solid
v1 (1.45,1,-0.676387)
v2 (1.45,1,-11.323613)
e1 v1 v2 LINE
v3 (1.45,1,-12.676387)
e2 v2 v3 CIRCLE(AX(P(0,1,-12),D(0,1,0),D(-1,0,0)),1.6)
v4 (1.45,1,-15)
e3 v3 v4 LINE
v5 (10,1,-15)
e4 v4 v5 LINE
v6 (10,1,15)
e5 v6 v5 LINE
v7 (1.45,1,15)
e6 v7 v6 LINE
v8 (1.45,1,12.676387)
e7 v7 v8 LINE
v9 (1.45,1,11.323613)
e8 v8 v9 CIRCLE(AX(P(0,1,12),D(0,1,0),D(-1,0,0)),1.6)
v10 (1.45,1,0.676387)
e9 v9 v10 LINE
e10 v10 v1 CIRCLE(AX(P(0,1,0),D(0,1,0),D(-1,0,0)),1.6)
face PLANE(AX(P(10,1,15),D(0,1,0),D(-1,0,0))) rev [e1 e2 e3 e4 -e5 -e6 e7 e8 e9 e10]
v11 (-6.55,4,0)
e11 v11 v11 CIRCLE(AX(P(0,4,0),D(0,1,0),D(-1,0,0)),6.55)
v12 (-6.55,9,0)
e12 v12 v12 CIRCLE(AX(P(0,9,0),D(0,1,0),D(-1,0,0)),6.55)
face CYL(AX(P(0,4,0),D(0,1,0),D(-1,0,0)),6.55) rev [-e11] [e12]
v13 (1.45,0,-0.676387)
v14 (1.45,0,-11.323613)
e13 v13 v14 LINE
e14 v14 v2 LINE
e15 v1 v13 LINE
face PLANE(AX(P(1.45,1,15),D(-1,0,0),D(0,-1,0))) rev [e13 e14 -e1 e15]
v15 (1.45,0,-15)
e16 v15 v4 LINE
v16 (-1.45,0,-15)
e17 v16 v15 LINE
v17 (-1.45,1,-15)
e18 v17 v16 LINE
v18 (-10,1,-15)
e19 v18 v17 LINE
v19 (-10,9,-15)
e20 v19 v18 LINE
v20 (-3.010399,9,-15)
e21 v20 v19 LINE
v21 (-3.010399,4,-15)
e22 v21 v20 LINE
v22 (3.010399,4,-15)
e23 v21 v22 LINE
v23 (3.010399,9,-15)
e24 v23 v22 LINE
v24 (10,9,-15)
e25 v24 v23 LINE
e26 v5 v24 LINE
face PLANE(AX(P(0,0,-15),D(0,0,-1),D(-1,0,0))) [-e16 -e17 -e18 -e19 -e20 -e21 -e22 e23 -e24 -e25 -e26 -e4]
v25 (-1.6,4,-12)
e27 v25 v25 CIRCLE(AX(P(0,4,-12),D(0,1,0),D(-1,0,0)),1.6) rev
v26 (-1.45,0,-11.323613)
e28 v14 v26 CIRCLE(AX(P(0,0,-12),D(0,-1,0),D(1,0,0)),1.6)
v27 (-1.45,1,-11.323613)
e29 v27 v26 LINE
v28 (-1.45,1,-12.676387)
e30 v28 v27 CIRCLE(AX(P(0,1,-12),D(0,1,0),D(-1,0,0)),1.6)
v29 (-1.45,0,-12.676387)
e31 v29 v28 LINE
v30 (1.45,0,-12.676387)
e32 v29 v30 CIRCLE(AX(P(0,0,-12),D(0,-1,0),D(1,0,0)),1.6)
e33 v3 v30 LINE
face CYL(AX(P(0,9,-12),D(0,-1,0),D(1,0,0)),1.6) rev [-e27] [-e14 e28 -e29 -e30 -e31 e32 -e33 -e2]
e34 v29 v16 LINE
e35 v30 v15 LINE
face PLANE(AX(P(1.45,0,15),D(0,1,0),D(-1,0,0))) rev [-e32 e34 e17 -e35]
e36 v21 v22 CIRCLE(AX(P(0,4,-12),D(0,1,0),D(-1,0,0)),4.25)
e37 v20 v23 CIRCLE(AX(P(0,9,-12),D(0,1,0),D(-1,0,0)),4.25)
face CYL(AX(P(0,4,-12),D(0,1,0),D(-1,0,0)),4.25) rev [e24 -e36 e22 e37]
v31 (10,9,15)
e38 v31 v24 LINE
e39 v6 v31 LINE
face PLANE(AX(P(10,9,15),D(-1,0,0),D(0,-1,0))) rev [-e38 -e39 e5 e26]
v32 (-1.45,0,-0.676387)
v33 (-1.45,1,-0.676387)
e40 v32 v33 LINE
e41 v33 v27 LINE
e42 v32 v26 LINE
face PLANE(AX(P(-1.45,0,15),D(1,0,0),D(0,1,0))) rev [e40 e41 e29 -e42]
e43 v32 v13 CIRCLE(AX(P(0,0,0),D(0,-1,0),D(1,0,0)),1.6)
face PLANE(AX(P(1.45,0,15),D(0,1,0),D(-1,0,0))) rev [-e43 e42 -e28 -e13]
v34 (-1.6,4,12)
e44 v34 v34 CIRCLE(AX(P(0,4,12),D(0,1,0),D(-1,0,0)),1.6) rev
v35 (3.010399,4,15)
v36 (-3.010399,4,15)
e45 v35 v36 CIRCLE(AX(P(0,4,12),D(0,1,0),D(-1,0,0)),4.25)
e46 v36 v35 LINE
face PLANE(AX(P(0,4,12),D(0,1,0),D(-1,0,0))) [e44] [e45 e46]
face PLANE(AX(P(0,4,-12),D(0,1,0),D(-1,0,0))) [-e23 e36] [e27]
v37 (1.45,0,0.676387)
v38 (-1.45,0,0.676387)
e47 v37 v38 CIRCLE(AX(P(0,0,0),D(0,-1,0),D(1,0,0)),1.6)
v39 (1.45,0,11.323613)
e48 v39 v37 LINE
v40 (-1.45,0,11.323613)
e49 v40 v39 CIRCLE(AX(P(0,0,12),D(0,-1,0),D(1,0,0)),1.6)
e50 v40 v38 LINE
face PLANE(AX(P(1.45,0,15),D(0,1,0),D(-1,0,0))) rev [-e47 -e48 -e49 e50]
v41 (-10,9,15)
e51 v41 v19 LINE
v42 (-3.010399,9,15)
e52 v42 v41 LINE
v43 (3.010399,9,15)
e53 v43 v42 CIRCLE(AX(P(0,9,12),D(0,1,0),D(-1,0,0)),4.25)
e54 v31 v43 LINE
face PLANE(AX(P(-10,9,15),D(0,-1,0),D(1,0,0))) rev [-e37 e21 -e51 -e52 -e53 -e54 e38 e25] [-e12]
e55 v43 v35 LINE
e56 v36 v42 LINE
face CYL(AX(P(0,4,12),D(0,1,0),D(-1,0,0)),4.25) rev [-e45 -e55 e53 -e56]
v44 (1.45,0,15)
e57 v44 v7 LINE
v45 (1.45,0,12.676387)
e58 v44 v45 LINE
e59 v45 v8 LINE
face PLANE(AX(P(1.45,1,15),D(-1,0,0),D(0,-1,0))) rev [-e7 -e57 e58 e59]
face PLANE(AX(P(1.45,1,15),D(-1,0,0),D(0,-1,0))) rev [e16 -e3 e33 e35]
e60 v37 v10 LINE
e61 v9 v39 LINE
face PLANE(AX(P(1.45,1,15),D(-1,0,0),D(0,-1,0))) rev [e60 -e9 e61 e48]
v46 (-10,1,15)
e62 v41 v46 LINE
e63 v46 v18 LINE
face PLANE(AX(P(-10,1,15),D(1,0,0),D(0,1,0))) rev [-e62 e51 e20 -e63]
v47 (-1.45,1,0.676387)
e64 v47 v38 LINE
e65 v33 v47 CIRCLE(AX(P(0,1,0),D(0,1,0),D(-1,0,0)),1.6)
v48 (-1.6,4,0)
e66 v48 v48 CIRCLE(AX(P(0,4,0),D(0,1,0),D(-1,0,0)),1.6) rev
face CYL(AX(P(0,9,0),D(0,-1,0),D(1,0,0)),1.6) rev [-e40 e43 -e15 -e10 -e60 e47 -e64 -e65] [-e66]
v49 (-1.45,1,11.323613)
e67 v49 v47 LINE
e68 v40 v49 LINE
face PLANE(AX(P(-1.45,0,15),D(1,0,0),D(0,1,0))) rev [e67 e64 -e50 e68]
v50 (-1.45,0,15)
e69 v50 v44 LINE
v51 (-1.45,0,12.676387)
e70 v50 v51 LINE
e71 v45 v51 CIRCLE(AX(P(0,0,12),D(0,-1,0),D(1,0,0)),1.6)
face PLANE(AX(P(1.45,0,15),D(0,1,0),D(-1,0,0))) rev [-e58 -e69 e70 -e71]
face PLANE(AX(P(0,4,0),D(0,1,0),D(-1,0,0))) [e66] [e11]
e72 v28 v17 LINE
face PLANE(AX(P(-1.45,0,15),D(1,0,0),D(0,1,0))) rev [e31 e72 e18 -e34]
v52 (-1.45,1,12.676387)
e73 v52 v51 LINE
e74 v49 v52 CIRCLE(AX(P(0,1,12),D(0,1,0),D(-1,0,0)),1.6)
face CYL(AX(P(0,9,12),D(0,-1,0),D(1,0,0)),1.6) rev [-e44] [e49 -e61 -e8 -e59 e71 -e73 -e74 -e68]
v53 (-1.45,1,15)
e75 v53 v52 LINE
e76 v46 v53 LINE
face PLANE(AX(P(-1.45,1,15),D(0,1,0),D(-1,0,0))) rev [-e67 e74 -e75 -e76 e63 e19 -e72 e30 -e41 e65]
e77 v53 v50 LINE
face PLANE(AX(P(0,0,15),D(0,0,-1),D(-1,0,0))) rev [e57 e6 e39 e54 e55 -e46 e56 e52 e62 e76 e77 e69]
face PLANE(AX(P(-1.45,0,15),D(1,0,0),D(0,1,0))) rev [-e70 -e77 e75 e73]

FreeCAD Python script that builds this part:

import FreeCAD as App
import Part
import Sketcher
from FreeCAD import Vector
Q = App.Units.Quantity


def add_polygon(sketch, points):
    """Adds a closed chain of lines whose ends are joined by coincident constraints."""
    first, n = sketch.GeometryCount, len(points)
    for a, b in zip(points, points[1:] + points[:1]):
        sketch.addGeometry(Part.LineSegment(App.Vector(*a, 0), App.Vector(*b, 0)), False)
    for i in range(n):
        sketch.addConstraint(Sketcher.Constraint("Coincident", first + i, 2, first + (i + 1) % n, 1))

doc = App.newDocument("Part")
body = doc.addObject("PartDesign::Body", "Body")

# Sketch on XY plane
sketch1 = body.newObject("Sketcher::SketchObject", "Sketch")
sketch1.AttachmentSupport = (doc.getObject("XY_Plane"), [""])
sketch1.MapMode = "FlatFace"
add_polygon(sketch1, [(10, 9), (-10, 9), (-10, 1), (-1.4, 1), (-1.4, 0), (1.4, 0), (1.4, 1), (10, 1)])  # lines 0-7
sketch1.addConstraint([
    Sketcher.Constraint("Horizontal", 0),
    Sketcher.Constraint("Vertical", 1),
    Sketcher.Constraint("Horizontal", 2),
    Sketcher.Constraint("Vertical", 3),
    Sketcher.Constraint("Horizontal", 4),
    Sketcher.Constraint("Vertical", 5),
    Sketcher.Constraint("Horizontal", 6),
    Sketcher.Constraint("Vertical", 7),
    Sketcher.Constraint("Symmetric", 3, 2, 4, 2, -1, 1),
    Sketcher.Constraint("Symmetric", 1, 2, 6, 2, -2),
    Sketcher.Constraint("DistanceX", 0, 2, 0, 1, Q("20 mm")),
    Sketcher.Constraint("DistanceY", 1, 2, 1, 1, Q("8 mm")),
    Sketcher.Constraint("DistanceY", 3, 2, 3, 1, Q("1 mm")),
    Sketcher.Constraint("DistanceX", 4, 1, 4, 2, Q("2.9 mm")),
])
pad1 = body.newObject("PartDesign::Pad", "Pad")
pad1.Profile = sketch1
pad1.Length = 30
pad1.Midplane = True

# Sketch on XZ plane
sketch2 = body.newObject("Sketcher::SketchObject", "Sketch001")
sketch2.AttachmentSupport = (doc.getObject("XZ_Plane"), [""])
sketch2.MapMode = "FlatFace"
sketch2.addGeometry([
    Part.Circle(Vector(0, -12, 0), Vector(0, 0, 1), 1.6),
    Part.Circle(Vector(0, 12, 0), Vector(0, 0, 1), 1.6),
    Part.Circle(Vector(0, 0, 0), Vector(0, 0, 1), 1.6),
], False)
sketch2.addConstraint([
    Sketcher.Constraint("Coincident", 2, 3, -1, 1),
    Sketcher.Constraint("Equal", 0, 1),
    Sketcher.Constraint("Equal", 1, 2),
    Sketcher.Constraint("Symmetric", 0, 3, 1, 3, -1, 1),
    Sketcher.Constraint("PointOnObject", 0, 3, -2),
    Sketcher.Constraint("Diameter", 0, Q("3.2 mm")),
    Sketcher.Constraint("DistanceY", 0, 3, -1, 1, Q("12 mm")),
])
pocket1 = body.newObject("PartDesign::Pocket", "Pocket")
pocket1.Profile = sketch2
pocket1.Type = "ThroughAll"

# Sketch on XZ plane
sketch3 = body.newObject("Sketcher::SketchObject", "Sketch002")
sketch3.AttachmentSupport = (doc.getObject("XZ_Plane"), [""])
sketch3.MapMode = "FlatFace"
sketch3.AttachmentOffset = App.Placement(Vector(0, 0, -9), App.Rotation())
sketch3.addGeometry([
    Part.Circle(Vector(0, 0, 0), Vector(0, 0, 1), 6.5),
    Part.Circle(Vector(0, -12, 0), Vector(0, 0, 1), 4.2),
    Part.Circle(Vector(0, 12, 0), Vector(0, 0, 1), 4.2),
], False)
sketch3.addConstraint([
    Sketcher.Constraint("Coincident", 0, 3, -1, 1),
    Sketcher.Constraint("Equal", 1, 2),
    Sketcher.Constraint("Symmetric", 1, 3, 2, 3, -1, 1),
    Sketcher.Constraint("PointOnObject", 1, 3, -2),
    Sketcher.Constraint("Diameter", 0, Q("13.1 mm")),
    Sketcher.Constraint("Diameter", 1, Q("8.5 mm")),
    Sketcher.Constraint("DistanceY", 1, 3, -1, 1, Q("12 mm")),
])
pocket2 = body.newObject("PartDesign::Pocket", "Pocket001")
pocket2.Profile = sketch3
pocket2.Length = 5
pocket2.Reversed = True

doc.recompute()
